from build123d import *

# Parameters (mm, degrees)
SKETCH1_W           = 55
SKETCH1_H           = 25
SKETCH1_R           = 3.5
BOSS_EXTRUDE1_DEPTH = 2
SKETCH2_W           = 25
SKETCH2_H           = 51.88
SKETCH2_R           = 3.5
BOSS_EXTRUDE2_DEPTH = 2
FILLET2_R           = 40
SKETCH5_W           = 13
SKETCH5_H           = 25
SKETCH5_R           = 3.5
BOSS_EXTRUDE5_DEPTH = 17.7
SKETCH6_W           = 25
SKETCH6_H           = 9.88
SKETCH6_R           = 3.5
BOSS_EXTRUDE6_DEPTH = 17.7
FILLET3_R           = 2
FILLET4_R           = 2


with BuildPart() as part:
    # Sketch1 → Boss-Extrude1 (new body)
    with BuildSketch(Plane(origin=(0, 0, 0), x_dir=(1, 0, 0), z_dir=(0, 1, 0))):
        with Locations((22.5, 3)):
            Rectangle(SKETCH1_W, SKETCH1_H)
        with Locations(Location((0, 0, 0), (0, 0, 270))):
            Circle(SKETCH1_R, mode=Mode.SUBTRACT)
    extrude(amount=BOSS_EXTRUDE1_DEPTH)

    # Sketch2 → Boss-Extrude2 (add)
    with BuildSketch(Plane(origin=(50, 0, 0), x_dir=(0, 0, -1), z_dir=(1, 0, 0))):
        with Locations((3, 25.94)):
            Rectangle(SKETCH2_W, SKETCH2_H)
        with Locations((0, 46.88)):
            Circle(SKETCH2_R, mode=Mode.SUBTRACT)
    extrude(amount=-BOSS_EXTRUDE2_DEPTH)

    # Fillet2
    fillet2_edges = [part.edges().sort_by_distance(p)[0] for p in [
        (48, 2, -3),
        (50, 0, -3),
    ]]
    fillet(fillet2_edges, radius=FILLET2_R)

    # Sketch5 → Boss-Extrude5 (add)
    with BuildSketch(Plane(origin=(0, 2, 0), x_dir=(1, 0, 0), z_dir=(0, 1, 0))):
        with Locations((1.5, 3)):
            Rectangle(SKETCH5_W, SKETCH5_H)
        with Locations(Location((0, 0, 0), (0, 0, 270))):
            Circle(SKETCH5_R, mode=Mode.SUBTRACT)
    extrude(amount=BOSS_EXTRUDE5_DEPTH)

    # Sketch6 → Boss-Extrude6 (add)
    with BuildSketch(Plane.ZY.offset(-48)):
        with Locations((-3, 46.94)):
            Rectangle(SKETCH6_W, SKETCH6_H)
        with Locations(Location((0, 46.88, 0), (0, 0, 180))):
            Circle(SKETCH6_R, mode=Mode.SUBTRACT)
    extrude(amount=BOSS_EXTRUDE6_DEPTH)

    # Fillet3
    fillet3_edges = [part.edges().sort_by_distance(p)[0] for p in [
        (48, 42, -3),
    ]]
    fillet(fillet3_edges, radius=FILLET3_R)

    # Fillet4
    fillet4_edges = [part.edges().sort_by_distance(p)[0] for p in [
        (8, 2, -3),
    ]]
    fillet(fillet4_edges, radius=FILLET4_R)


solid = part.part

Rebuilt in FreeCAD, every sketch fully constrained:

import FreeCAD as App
import Part
import Sketcher
from FreeCAD import Vector
Q = App.Units.Quantity


def edges_at(feature, points):
    """Names of the edges that pass closest to the given points."""
    edges = feature.Shape.Edges
    near = lambda p: min(range(len(edges)), key=lambda i: edges[i].distToShape(Part.Vertex(*p))[0])
    return sorted({f"Edge{near(p) + 1}" for p in points})

doc = App.newDocument("Part")
params = doc.addObject("Spreadsheet::Sheet", "Params")
for row, (alias, value) in enumerate([
    ("sketch1_diameter", "7 mm"),
    ("sketch1_width", "55 mm"),
    ("sketch1_height", "25 mm"),
    ("pad1_length", "2 mm"),
    ("sketch2_diameter", "7 mm"),
    ("sketch2_height", "25 mm"),
    ("sketch2_width", "51.88 mm"),
    ("pad2_length", "2 mm"),
    ("fillet_radius", "40 mm"),
    ("sketch3_diameter", "7 mm"),
    ("sketch3_width", "13 mm"),
    ("sketch3_height", "25 mm"),
    ("pad3_length", "17.7 mm"),
    ("sketch4_diameter", "7 mm"),
    ("sketch4_height", "25 mm"),
    ("sketch4_width", "9.88 mm"),
    ("pad4_length", "17.7 mm"),
    ("fillet2_radius", "2 mm"),
    ("fillet3_radius", "2 mm"),
], start=1):
    params.set(f"A{row}", alias)
    params.set(f"B{row}", "=" + value)
    params.setAlias(f"B{row}", alias)

body = doc.addObject("PartDesign::Body", "Body")

# Sketch on XZ plane
sketch1 = body.newObject("Sketcher::SketchObject", "Sketch")
sketch1.AttachmentSupport = (doc.getObject("XZ_Plane"), [""])
sketch1.MapMode = "FlatFace"
sketch1.addGeometry(Part.LineSegment(Vector(-5, -15.5, 0), Vector(-5, 9.5, 0)), False)
sketch1.addGeometry(Part.LineSegment(Vector(-5, 9.5, 0), Vector(50, 9.5, 0)), False)
sketch1.addGeometry(Part.LineSegment(Vector(50, 9.5, 0), Vector(50, -15.5, 0)), False)
sketch1.addGeometry(Part.LineSegment(Vector(50, -15.5, 0), Vector(-5, -15.5, 0)), False)
sketch1.addGeometry(Part.Circle(Vector(0, 0, 0), Vector(0, 0, 1), 3.5), False)
sketch1.addConstraint(Sketcher.Constraint("Coincident", 0, 2, 1, 1))
sketch1.addConstraint(Sketcher.Constraint("Coincident", 1, 2, 2, 1))
sketch1.addConstraint(Sketcher.Constraint("Coincident", 2, 2, 3, 1))
sketch1.addConstraint(Sketcher.Constraint("Coincident", 3, 2, 0, 1))
sketch1.addConstraint(Sketcher.Constraint("Vertical", 0))
sketch1.addConstraint(Sketcher.Constraint("Horizontal", 1))
sketch1.addConstraint(Sketcher.Constraint("Vertical", 2))
sketch1.addConstraint(Sketcher.Constraint("Horizontal", 3))
sketch1.addConstraint(Sketcher.Constraint("Coincident", 4, 3, -1, 1))
sketch1.addConstraint(Sketcher.Constraint("Diameter", 4, Q("7 mm")))
sketch1.addConstraint(Sketcher.Constraint("DistanceX", 1, 1, 1, 2, Q("55 mm")))
sketch1.addConstraint(Sketcher.Constraint("DistanceY", 0, 1, 0, 2, Q("25 mm")))
sketch1.addConstraint(Sketcher.Constraint("DistanceX", 0, 2, -1, 1, Q("5 mm")))
sketch1.addConstraint(Sketcher.Constraint("DistanceY", -1, 1, 0, 2, Q("9.5 mm")))
sketch1.setExpression("Constraints[9]", "Params.sketch1_diameter")
sketch1.setExpression("Constraints[10]", "Params.sketch1_width")
sketch1.setExpression("Constraints[11]", "Params.sketch1_height")
pad1 = body.newObject("PartDesign::Pad", "Pad")
pad1.Profile = sketch1
pad1.setExpression("Length", "Params.pad1_length")
pad1.Reversed = True

# Sketch on YZ plane
sketch2 = body.newObject("Sketcher::SketchObject", "Sketch001")
sketch2.AttachmentSupport = (doc.getObject("YZ_Plane"), [""])
sketch2.MapMode = "FlatFace"
sketch2.AttachmentOffset = App.Placement(Vector(0, 0, 50), App.Rotation())
sketch2.addGeometry(Part.LineSegment(Vector(51.9, 9.5, 0), Vector(0, 9.5, 0)), False)
sketch2.addGeometry(Part.LineSegment(Vector(0, 9.5, 0), Vector(0, -15.5, 0)), False)
sketch2.addGeometry(Part.LineSegment(Vector(0, -15.5, 0), Vector(51.9, -15.5, 0)), False)
sketch2.addGeometry(Part.LineSegment(Vector(51.9, -15.5, 0), Vector(51.9, 9.5, 0)), False)
sketch2.addGeometry(Part.Circle(Vector(46.9, 0, 0), Vector(0, 0, 1), 3.5), False)
sketch2.addConstraint(Sketcher.Constraint("Coincident", 0, 2, 1, 1))
sketch2.addConstraint(Sketcher.Constraint("Coincident", 1, 2, 2, 1))
sketch2.addConstraint(Sketcher.Constraint("Coincident", 2, 2, 3, 1))
sketch2.addConstraint(Sketcher.Constraint("Coincident", 3, 2, 0, 1))
sketch2.addConstraint(Sketcher.Constraint("Horizontal", 0))
sketch2.addConstraint(Sketcher.Constraint("Vertical", 1))
sketch2.addConstraint(Sketcher.Constraint("Horizontal", 2))
sketch2.addConstraint(Sketcher.Constraint("Vertical", 3))
sketch2.addConstraint(Sketcher.Constraint("PointOnObject", 4, 3, -1))
sketch2.addConstraint(Sketcher.Constraint("PointOnObject", 0, 2, -2))
sketch2.addConstraint(Sketcher.Constraint("Diameter", 4, Q("7 mm")))
sketch2.addConstraint(Sketcher.Constraint("DistanceY", 1, 2, 1, 1, Q("25 mm")))
sketch2.addConstraint(Sketcher.Constraint("DistanceX", 4, 3, 2, 2, Q("5 mm")))
sketch2.addConstraint(Sketcher.Constraint("DistanceX", 0, 2, 0, 1, Q("51.88 mm")))
sketch2.addConstraint(Sketcher.Constraint("DistanceY", -1, 1, 0, 2, Q("9.5 mm")))
sketch2.setExpression("Constraints[10]", "Params.sketch2_diameter")
sketch2.setExpression("Constraints[11]", "Params.sketch2_height")
sketch2.setExpression("Constraints[13]", "Params.sketch2_width")
pad2 = body.newObject("PartDesign::Pad", "Pad001")
pad2.Profile = sketch2
pad2.setExpression("Length", "Params.pad2_length")
pad2.Reversed = True
doc.recompute()

fillet = body.newObject("PartDesign::Fillet", "Fillet")
fillet.Base = (pad2, edges_at(pad2, [(48, 2, -3), (50, 0, -3)]))
fillet.setExpression("Radius", "Params.fillet_radius")

# Sketch on XZ plane
sketch3 = body.newObject("Sketcher::SketchObject", "Sketch002")
sketch3.AttachmentSupport = (doc.getObject("XZ_Plane"), [""])
sketch3.MapMode = "FlatFace"
sketch3.AttachmentOffset = App.Placement(Vector(0, 0, -2), App.Rotation())
sketch3.addGeometry(Part.LineSegment(Vector(-5, -15.5, 0), Vector(-5, 9.5, 0)), False)
sketch3.addGeometry(Part.LineSegment(Vector(-5, 9.5, 0), Vector(8, 9.5, 0)), False)
sketch3.addGeometry(Part.LineSegment(Vector(8, 9.5, 0), Vector(8, -15.5, 0)), False)
sketch3.addGeometry(Part.LineSegment(Vector(8, -15.5, 0), Vector(-5, -15.5, 0)), False)
sketch3.addGeometry(Part.Circle(Vector(0, 0, 0), Vector(0, 0, 1), 3.5), False)
sketch3.addConstraint(Sketcher.Constraint("Coincident", 0, 2, 1, 1))
sketch3.addConstraint(Sketcher.Constraint("Coincident", 1, 2, 2, 1))
sketch3.addConstraint(Sketcher.Constraint("Coincident", 2, 2, 3, 1))
sketch3.addConstraint(Sketcher.Constraint("Coincident", 3, 2, 0, 1))
sketch3.addConstraint(Sketcher.Constraint("Vertical", 0))
sketch3.addConstraint(Sketcher.Constraint("Horizontal", 1))
sketch3.addConstraint(Sketcher.Constraint("Vertical", 2))
sketch3.addConstraint(Sketcher.Constraint("Horizontal", 3))
sketch3.addConstraint(Sketcher.Constraint("Coincident", 4, 3, -1, 1))
sketch3.addConstraint(Sketcher.Constraint("Diameter", 4, Q("7 mm")))
sketch3.addConstraint(Sketcher.Constraint("DistanceX", 1, 1, 1, 2, Q("13 mm")))
sketch3.addConstraint(Sketcher.Constraint("DistanceY", 0, 1, 0, 2, Q("25 mm")))
sketch3.addConstraint(Sketcher.Constraint("DistanceX", 0, 2, -1, 1, Q("5 mm")))
sketch3.addConstraint(Sketcher.Constraint("DistanceY", -1, 1, 0, 2, Q("9.5 mm")))
sketch3.setExpression("Constraints[9]", "Params.sketch3_diameter")
sketch3.setExpression("Constraints[10]", "Params.sketch3_width")
sketch3.setExpression("Constraints[11]", "Params.sketch3_height")
pad3 = body.newObject("PartDesign::Pad", "Pad002")
pad3.Profile = sketch3
pad3.setExpression("Length", "Params.pad3_length")
pad3.Reversed = True

# Sketch on YZ plane
sketch4 = body.newObject("Sketcher::SketchObject", "Sketch003")
sketch4.AttachmentSupport = (doc.getObject("YZ_Plane"), [""])
sketch4.MapMode = "FlatFace"
sketch4.AttachmentOffset = App.Placement(Vector(0, 0, 48), App.Rotation())
sketch4.addGeometry(Part.LineSegment(Vector(51.9, -15.5, 0), Vector(42, -15.5, 0)), False)
sketch4.addGeometry(Part.LineSegment(Vector(42, -15.5, 0), Vector(42, 9.5, 0)), False)
sketch4.addGeometry(Part.LineSegment(Vector(42, 9.5, 0), Vector(51.9, 9.5, 0)), False)
sketch4.addGeometry(Part.LineSegment(Vector(51.9, 9.5, 0), Vector(51.9, -15.5, 0)), False)
sketch4.addGeometry(Part.Circle(Vector(46.9, 0, 0), Vector(0, 0, 1), 3.5), False)
sketch4.addConstraint(Sketcher.Constraint("Coincident", 0, 2, 1, 1))
sketch4.addConstraint(Sketcher.Constraint("Coincident", 1, 2, 2, 1))
sketch4.addConstraint(Sketcher.Constraint("Coincident", 2, 2, 3, 1))
sketch4.addConstraint(Sketcher.Constraint("Coincident", 3, 2, 0, 1))
sketch4.addConstraint(Sketcher.Constraint("Horizontal", 0))
sketch4.addConstraint(Sketcher.Constraint("Vertical", 1))
sketch4.addConstraint(Sketcher.Constraint("Horizontal", 2))
sketch4.addConstraint(Sketcher.Constraint("Vertical", 3))
sketch4.addConstraint(Sketcher.Constraint("PointOnObject", 4, 3, -1))
sketch4.addConstraint(Sketcher.Constraint("Diameter", 4, Q("7 mm")))
sketch4.addConstraint(Sketcher.Constraint("DistanceY", 1, 1, 1, 2, Q("25 mm")))
sketch4.addConstraint(Sketcher.Constraint("DistanceX", -1, 1, 0, 2, Q("42 mm")))
sketch4.addConstraint(Sketcher.Constraint("DistanceX", 4, 3, 2, 2, Q("5 mm")))
sketch4.addConstraint(Sketcher.Constraint("DistanceX", 0, 2, 0, 1, Q("9.88 mm")))
sketch4.addConstraint(Sketcher.Constraint("DistanceY", 0, 2, -1, 1, Q("15.5 mm")))
sketch4.setExpression("Constraints[9]", "Params.sketch4_diameter")
sketch4.setExpression("Constraints[10]", "Params.sketch4_height")
sketch4.setExpression("Constraints[13]", "Params.sketch4_width")
pad4 = body.newObject("PartDesign::Pad", "Pad003")
pad4.Profile = sketch4
pad4.setExpression("Length", "Params.pad4_length")
pad4.Reversed = True
doc.recompute()

fillet2 = body.newObject("PartDesign::Fillet", "Fillet001")
fillet2.Base = (pad4, edges_at(pad4, [(48, 42, -3)]))
fillet2.setExpression("Radius", "Params.fillet2_radius")
doc.recompute()

fillet3 = body.newObject("PartDesign::Fillet", "Fillet002")
fillet3.Base = (fillet2, edges_at(fillet2, [(8, 2, -3)]))
fillet3.setExpression("Radius", "Params.fillet3_radius")

doc.recompute()
